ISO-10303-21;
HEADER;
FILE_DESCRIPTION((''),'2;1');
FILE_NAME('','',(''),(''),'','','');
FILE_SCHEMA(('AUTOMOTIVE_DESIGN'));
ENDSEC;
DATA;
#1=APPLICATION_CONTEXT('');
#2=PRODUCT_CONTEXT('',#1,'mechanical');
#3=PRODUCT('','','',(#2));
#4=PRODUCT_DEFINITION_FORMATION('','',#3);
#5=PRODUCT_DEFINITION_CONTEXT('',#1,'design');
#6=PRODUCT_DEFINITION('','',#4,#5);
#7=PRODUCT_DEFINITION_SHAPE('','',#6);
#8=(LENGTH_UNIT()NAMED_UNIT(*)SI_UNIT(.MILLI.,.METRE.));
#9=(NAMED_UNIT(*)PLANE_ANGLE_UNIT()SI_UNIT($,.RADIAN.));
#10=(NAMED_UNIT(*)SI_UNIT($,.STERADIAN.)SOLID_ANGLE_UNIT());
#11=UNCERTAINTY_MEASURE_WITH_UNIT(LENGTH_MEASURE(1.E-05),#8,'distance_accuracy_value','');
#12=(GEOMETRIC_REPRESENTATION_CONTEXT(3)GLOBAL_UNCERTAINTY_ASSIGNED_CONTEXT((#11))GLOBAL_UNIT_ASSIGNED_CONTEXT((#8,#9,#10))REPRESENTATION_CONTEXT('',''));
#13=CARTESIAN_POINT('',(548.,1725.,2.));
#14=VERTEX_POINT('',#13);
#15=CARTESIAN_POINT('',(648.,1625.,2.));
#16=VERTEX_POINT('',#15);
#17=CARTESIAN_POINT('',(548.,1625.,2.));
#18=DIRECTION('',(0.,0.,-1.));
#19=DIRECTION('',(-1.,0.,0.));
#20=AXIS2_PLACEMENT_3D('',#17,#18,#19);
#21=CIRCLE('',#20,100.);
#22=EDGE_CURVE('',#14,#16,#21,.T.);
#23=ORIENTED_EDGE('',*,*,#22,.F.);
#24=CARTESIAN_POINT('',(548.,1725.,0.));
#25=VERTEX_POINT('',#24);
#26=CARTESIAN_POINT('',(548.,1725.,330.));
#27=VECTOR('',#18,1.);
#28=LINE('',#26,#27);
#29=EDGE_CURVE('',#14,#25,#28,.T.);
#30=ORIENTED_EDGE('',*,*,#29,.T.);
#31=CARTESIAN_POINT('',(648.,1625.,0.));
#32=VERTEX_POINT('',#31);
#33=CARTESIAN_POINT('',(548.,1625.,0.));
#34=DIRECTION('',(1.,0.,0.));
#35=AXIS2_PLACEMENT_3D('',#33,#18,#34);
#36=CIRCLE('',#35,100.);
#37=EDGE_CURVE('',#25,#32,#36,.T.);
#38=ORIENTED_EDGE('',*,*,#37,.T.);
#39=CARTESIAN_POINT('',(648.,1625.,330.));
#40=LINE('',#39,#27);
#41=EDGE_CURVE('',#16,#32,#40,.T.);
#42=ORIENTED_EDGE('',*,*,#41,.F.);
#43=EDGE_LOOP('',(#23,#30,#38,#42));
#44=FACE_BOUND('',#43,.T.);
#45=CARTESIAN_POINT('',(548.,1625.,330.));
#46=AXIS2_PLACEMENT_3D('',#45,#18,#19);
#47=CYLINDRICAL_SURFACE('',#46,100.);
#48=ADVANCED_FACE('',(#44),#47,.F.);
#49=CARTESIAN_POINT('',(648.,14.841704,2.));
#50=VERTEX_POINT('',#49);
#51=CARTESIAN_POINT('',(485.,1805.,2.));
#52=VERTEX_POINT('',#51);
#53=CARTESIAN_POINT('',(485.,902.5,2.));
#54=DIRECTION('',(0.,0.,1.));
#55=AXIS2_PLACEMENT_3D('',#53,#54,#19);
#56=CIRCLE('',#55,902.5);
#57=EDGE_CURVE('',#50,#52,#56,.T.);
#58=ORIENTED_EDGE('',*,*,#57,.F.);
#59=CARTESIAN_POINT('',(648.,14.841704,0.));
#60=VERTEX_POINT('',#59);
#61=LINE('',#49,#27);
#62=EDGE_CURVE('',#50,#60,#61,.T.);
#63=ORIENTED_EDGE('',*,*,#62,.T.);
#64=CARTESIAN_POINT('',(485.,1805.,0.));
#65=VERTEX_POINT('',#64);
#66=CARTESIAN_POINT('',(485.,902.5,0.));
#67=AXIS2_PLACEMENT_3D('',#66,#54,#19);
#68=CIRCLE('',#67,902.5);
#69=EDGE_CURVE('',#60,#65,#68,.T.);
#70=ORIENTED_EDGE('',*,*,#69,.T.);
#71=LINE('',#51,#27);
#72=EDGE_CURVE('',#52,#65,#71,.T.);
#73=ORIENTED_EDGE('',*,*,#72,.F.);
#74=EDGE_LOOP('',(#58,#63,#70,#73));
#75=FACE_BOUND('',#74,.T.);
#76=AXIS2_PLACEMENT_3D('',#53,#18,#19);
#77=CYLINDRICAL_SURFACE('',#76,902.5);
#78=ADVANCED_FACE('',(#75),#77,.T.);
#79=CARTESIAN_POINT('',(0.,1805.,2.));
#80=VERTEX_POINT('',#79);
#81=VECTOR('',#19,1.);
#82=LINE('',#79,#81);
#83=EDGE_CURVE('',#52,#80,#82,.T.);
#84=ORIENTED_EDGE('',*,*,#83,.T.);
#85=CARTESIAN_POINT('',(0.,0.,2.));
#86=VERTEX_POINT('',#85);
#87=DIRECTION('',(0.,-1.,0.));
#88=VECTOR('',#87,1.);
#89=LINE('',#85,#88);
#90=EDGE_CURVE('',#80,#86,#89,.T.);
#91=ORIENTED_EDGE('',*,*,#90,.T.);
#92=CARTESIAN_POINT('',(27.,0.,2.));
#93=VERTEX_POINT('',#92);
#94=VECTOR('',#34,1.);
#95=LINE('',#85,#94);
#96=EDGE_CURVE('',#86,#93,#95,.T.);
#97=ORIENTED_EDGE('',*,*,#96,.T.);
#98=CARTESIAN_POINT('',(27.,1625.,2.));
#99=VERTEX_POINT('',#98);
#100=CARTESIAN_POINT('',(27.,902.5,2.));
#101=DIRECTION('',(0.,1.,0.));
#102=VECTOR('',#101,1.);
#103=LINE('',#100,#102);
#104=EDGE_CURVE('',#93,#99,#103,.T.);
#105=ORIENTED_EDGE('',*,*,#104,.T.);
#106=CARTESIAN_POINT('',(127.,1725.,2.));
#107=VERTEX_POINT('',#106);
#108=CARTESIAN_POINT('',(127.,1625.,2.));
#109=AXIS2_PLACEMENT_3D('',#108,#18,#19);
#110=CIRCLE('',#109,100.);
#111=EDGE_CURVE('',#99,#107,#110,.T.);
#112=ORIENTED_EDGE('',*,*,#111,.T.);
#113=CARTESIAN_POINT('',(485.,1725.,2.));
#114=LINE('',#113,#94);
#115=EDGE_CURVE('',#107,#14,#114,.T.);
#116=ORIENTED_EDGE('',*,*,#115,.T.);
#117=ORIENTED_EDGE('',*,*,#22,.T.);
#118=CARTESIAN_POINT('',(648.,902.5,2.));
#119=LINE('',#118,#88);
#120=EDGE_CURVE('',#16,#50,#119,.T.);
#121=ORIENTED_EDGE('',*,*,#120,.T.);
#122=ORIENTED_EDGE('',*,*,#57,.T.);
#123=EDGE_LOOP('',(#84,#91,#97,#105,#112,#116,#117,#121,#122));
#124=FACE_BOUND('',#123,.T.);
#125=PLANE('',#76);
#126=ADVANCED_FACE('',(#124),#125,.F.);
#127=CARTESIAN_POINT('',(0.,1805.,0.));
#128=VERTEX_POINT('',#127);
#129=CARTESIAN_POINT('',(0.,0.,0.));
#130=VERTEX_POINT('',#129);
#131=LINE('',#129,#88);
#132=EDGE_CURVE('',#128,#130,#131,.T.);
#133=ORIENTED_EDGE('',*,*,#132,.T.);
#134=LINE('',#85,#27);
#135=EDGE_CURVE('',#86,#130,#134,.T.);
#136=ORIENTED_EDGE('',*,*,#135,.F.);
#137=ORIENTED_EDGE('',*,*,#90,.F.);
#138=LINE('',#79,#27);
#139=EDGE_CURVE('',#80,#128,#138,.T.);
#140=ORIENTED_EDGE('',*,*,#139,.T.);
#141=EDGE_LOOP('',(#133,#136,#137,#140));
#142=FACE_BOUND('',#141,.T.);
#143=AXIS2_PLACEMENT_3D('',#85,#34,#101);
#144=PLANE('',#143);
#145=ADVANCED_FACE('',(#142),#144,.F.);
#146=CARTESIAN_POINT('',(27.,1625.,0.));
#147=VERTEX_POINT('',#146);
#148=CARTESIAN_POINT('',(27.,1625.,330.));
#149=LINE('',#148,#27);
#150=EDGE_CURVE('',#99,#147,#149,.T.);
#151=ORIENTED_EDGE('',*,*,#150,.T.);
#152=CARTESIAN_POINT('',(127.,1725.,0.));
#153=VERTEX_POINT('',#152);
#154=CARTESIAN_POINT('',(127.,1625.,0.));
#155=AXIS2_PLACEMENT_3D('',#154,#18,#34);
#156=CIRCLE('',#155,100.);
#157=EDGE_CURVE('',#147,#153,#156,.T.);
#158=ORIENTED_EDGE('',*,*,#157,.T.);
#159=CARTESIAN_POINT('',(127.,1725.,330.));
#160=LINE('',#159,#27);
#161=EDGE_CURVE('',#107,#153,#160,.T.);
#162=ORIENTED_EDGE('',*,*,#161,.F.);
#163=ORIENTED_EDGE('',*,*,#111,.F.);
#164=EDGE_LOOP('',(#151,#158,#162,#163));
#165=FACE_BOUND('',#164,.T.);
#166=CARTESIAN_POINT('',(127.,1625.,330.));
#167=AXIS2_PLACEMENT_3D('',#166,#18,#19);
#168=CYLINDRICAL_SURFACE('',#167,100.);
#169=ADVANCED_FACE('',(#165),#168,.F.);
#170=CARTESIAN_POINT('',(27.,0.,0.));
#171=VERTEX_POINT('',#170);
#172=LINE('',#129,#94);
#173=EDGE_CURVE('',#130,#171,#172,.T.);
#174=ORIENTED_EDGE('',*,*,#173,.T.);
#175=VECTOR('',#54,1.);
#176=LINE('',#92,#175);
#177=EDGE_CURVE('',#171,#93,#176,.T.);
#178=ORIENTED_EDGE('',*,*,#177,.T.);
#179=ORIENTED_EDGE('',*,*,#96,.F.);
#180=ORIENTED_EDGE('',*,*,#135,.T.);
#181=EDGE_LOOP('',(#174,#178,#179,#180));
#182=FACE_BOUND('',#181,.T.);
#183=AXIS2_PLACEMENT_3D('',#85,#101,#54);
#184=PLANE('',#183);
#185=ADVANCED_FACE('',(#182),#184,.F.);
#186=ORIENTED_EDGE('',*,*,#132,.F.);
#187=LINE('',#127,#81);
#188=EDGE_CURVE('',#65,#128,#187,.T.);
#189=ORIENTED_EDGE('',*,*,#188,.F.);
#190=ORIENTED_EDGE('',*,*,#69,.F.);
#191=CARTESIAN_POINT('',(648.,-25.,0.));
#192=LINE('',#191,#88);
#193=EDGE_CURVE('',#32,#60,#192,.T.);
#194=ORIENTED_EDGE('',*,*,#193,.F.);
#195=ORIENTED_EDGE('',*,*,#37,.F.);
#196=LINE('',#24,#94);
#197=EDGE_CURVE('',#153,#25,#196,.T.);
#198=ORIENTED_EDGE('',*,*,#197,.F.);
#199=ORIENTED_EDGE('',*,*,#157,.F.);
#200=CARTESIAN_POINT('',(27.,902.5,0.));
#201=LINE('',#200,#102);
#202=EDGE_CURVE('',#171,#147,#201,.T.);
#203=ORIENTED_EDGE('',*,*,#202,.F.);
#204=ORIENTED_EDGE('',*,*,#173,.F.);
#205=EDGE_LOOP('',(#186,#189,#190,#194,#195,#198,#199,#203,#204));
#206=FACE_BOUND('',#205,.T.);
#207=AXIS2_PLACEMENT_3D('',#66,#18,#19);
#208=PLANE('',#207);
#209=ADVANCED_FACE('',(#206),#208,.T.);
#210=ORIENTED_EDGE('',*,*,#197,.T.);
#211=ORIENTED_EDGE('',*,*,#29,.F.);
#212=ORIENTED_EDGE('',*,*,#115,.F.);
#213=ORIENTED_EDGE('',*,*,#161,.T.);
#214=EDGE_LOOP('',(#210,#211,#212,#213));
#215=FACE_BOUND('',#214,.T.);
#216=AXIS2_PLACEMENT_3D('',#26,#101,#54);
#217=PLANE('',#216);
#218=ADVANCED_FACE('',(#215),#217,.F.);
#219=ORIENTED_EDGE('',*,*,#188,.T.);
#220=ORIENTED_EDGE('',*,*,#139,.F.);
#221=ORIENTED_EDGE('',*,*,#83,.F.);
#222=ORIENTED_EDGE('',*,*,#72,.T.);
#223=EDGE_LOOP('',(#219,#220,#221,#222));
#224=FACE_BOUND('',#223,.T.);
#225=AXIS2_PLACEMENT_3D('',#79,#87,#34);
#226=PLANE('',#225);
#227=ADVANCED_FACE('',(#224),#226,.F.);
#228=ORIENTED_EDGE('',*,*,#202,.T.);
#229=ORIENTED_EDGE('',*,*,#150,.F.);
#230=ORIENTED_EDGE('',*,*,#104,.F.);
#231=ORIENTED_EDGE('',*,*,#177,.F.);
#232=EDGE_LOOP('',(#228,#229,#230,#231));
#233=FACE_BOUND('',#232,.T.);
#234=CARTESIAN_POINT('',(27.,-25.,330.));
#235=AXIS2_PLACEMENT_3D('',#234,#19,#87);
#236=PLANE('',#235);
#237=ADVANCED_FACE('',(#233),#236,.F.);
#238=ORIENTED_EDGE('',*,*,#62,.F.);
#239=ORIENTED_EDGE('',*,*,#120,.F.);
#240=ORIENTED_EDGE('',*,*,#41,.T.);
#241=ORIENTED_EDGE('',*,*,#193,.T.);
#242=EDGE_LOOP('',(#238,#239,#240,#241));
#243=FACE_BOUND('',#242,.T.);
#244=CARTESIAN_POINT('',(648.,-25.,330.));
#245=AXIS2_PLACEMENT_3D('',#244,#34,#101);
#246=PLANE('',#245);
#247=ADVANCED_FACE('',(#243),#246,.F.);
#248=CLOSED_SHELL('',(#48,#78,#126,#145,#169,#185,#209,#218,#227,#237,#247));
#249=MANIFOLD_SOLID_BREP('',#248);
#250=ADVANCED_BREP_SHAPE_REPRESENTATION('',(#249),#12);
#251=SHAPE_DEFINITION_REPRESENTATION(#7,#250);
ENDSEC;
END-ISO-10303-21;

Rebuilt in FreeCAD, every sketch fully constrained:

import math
import FreeCAD as App
import Part
import Sketcher
Q = App.Units.Quantity

doc = App.newDocument("Part")
body = doc.addObject("PartDesign::Body", "Body")

# Sketch on XY plane
sketch1 = doc.addObject("Sketcher::SketchObject", "Sketch")
body.addObject(sketch1)
sketch1.AttachmentSupport = (doc.XY_Plane, [""])
sketch1.MapMode = "FlatFace"
sketch1.addGeometry([
    Part.LineSegment(App.Vector(0, 0, 0), App.Vector(485, 0, 0)),
    Part.ArcOfCircle(Part.Circle(App.Vector(485, 902, 0), App.Vector(0, 0, 1), 902), math.radians(-90), math.radians(90)),
    Part.LineSegment(App.Vector(485, 1805, 0), App.Vector(0, 1805, 0)),
    Part.LineSegment(App.Vector(0, 1805, 0), App.Vector(0, 0, 0)),
], False)
sketch1.addConstraint([
    Sketcher.Constraint("Tangent", 0, 2, 1, 1),
    Sketcher.Constraint("Tangent", 1, 2, 2, 1),
    Sketcher.Constraint("Coincident", 2, 2, 3, 1),
    Sketcher.Constraint("Coincident", 3, 2, 0, 1),
    Sketcher.Constraint("Horizontal", 0),
    Sketcher.Constraint("Horizontal", 2),
    Sketcher.Constraint("Vertical", 3),
    Sketcher.Constraint("Coincident", 3, 2, -1, 1),
    Sketcher.Constraint("Radius", 1, Q("902.5 mm")),
    Sketcher.Constraint("DistanceX", 0, 1, 0, 2, Q("485 mm")),
])
pad1 = doc.addObject("PartDesign::Pad", "Pad")
body.addObject(pad1)
pad1.Profile = sketch1
pad1.Length = 2

# Sketch on XY plane
sketch2 = doc.addObject("Sketcher::SketchObject", "Sketch001")
body.addObject(sketch2)
sketch2.AttachmentSupport = (doc.XY_Plane, [""])
sketch2.MapMode = "FlatFace"
sketch2.addGeometry([
    Part.LineSegment(App.Vector(548, -125, 0), App.Vector(127, -125, 0)),  # 0
    Part.ArcOfCircle(Part.Circle(App.Vector(127, -25, 0), App.Vector(0, 0, 1), 100), math.radians(-180), math.radians(-90)),  # 1
    Part.LineSegment(App.Vector(27, -25, 0), App.Vector(27, 1625, 0)),  # 2
    Part.ArcOfCircle(Part.Circle(App.Vector(127, 1625, 0), App.Vector(0, 0, 1), 100), math.radians(90), math.radians(180)),  # 3
    Part.LineSegment(App.Vector(127, 1725, 0), App.Vector(548, 1725, 0)),  # 4
    Part.ArcOfCircle(Part.Circle(App.Vector(548, 1625, 0), App.Vector(0, 0, 1), 100), math.radians(0), math.radians(90)),  # 5
    Part.LineSegment(App.Vector(648, 1625, 0), App.Vector(648, -25, 0)),  # 6
    Part.ArcOfCircle(Part.Circle(App.Vector(548, -25, 0), App.Vector(0, 0, 1), 100), math.radians(-90), math.radians(0)),  # 7
], False)
sketch2.addConstraint([
    Sketcher.Constraint("Tangent", 0, 2, 1, 2),
    Sketcher.Constraint("Tangent", 1, 1, 2, 1),
    Sketcher.Constraint("Tangent", 2, 2, 3, 2),
    Sketcher.Constraint("Tangent", 3, 1, 4, 1),
    Sketcher.Constraint("Tangent", 4, 2, 5, 2),
    Sketcher.Constraint("Tangent", 5, 1, 6, 1),
    Sketcher.Constraint("Tangent", 6, 2, 7, 2),
    Sketcher.Constraint("Tangent", 7, 1, 0, 1),
    Sketcher.Constraint("Horizontal", 0),
    Sketcher.Constraint("Vertical", 2),
    Sketcher.Constraint("Horizontal", 4),
    Sketcher.Constraint("Vertical", 6),
    Sketcher.Constraint("Equal", 1, 3),
    Sketcher.Constraint("Equal", 3, 5),
    Sketcher.Constraint("Equal", 5, 7),
    Sketcher.Constraint("Radius", 1, Q("100 mm")),
    Sketcher.Constraint("DistanceX", 0, 2, 0, 1, Q("421 mm")),
    Sketcher.Constraint("DistanceY", 2, 1, 2, 2, Q("1650 mm")),
    Sketcher.Constraint("DistanceX", -1, 1, 1, 3, Q("127 mm")),
    Sketcher.Constraint("DistanceY", 1, 3, -1, 1, Q("25 mm")),
])
pocket1 = doc.addObject("PartDesign::Pocket", "Pocket")
body.addObject(pocket1)
pocket1.Profile = sketch2
pocket1.Length = 330
pocket1.Reversed = True

doc.recompute()
